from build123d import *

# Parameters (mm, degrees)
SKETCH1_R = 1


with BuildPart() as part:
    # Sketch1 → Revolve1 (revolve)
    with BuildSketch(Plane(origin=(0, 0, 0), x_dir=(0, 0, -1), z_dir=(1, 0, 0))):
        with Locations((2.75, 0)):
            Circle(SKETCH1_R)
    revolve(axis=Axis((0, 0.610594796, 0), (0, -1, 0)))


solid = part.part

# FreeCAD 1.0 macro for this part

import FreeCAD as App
import Part
import Sketcher
from FreeCAD import Vector

doc = App.newDocument("Part")
params = doc.addObject("Spreadsheet::Sheet", "Params")
for row, (alias, value) in enumerate([
    ("sketch1_diameter", "2 mm"),
    ("revolution_angle", "360 deg"),
], start=1):
    params.set(f"A{row}", alias)
    params.set(f"B{row}", "=" + value)
    params.setAlias(f"B{row}", alias)

body = doc.addObject("PartDesign::Body", "Body")

# Sketch on YZ plane
sketch1 = body.newObject("Sketcher::SketchObject", "Sketch")
sketch1.AttachmentSupport = (doc.getObject("YZ_Plane"), [""])
sketch1.MapMode = "FlatFace"
sketch1.addGeometry(Part.Circle(Vector(0, -2.75, 0), Vector(0, 0, 1), 1), False)
sketch1.addConstraint([
    Sketcher.Constraint("PointOnObject", 0, 3, -2),
    Sketcher.Constraint("Diameter", 0, 2.0),
    Sketcher.Constraint("DistanceY", 0, 3, -1, 1, 2.75),
])
sketch1.setExpression("Constraints[1]", "Params.sketch1_diameter")
revolution = body.newObject("PartDesign::Revolution", "Revolution")
revolution.Profile = sketch1
revolution.ReferenceAxis = (sketch1, ["H_Axis"])
revolution.setExpression("Angle", "Params.revolution_angle")

doc.recompute()
